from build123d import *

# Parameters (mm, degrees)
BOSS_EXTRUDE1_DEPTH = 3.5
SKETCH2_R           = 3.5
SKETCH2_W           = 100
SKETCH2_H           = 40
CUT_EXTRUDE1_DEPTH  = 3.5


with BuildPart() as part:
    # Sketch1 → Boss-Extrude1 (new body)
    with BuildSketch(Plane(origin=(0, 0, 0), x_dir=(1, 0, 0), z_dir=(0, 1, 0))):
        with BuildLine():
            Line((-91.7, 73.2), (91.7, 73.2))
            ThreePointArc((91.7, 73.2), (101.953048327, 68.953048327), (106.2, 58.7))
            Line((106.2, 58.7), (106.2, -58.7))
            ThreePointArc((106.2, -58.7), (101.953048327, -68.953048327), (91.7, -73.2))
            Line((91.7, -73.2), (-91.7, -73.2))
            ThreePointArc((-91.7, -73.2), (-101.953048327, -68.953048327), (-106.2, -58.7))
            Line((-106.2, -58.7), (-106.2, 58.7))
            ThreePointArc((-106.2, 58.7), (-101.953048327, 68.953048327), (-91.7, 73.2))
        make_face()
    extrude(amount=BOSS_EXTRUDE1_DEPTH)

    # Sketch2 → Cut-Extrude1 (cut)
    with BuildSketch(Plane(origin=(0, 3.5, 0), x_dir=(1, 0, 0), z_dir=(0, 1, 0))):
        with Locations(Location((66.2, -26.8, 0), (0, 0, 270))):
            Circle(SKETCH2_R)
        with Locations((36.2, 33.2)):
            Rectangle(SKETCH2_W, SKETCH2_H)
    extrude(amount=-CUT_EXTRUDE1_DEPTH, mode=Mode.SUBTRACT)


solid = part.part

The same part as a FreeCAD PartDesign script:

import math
import FreeCAD as App
import Part
import Sketcher
from FreeCAD import Vector

doc = App.newDocument("Part")
params = doc.addObject("Spreadsheet::Sheet", "Params")
for row, (alias, value) in enumerate([
    ("sketch1_radius", "14.5 mm"),
    ("sketch1_width", "183.4 mm"),
    ("sketch1_height", "117.4 mm"),
    ("pad1_length", "3.5 mm"),
    ("sketch2_diameter", "7 mm"),
    ("sketch2_width", "100 mm"),
    ("sketch2_height", "40 mm"),
    ("pocket1_length", "3.5 mm"),
], start=1):
    params.set(f"A{row}", alias)
    params.set(f"B{row}", "=" + value)
    params.setAlias(f"B{row}", alias)

body = doc.addObject("PartDesign::Body", "Body")

sketch1 = body.newObject("Sketcher::SketchObject", "Sketch")
sketch1.AttachmentSupport = (doc.getObject("XZ_Plane"), [""])
sketch1.MapMode = "FlatFace"
sketch1.addGeometry([
    Part.LineSegment(Vector(92, -73, 0), Vector(-92, -73, 0)),
    Part.ArcOfCircle(Part.Circle(Vector(-92, -59, 0), Vector(0, 0, 1), 15), math.radians(-180), math.radians(-90)),
    Part.LineSegment(Vector(-106, -59, 0), Vector(-106, 59, 0)),
    Part.ArcOfCircle(Part.Circle(Vector(-92, 59, 0), Vector(0, 0, 1), 15), math.radians(90), math.radians(180)),
    Part.LineSegment(Vector(-92, 73, 0), Vector(92, 73, 0)),
    Part.ArcOfCircle(Part.Circle(Vector(92, 59, 0), Vector(0, 0, 1), 15), math.radians(0), math.radians(90)),
    Part.LineSegment(Vector(106, 59, 0), Vector(106, -59, 0)),
    Part.ArcOfCircle(Part.Circle(Vector(92, -59, 0), Vector(0, 0, 1), 15), math.radians(-90), math.radians(0)),
], False)
sketch1.addConstraint([
    Sketcher.Constraint("Tangent", 0, 2, 1, 2),
    Sketcher.Constraint("Tangent", 1, 1, 2, 1),
    Sketcher.Constraint("Tangent", 2, 2, 3, 2),
    Sketcher.Constraint("Tangent", 3, 1, 4, 1),
    Sketcher.Constraint("Tangent", 4, 2, 5, 2),
    Sketcher.Constraint("Tangent", 5, 1, 6, 1),
    Sketcher.Constraint("Tangent", 6, 2, 7, 2),
    Sketcher.Constraint("Tangent", 7, 1, 0, 1),
    Sketcher.Constraint("Horizontal", 0),
    Sketcher.Constraint("Vertical", 2),
    Sketcher.Constraint("Horizontal", 4),
    Sketcher.Constraint("Vertical", 6),
    Sketcher.Constraint("Equal", 1, 3),
    Sketcher.Constraint("Equal", 3, 5),
    Sketcher.Constraint("Equal", 5, 7),
    Sketcher.Constraint("Symmetric", 1, 3, 5, 3, -1, 1),
    Sketcher.Constraint("Radius", 1, 14.5),
    Sketcher.Constraint("DistanceX", 0, 2, 0, 1, 183.4),
    Sketcher.Constraint("DistanceY", 2, 1, 2, 2, 117.4),
])
sketch1.setExpression("Constraints[16]", "Params.sketch1_radius")
sketch1.setExpression("Constraints[17]", "Params.sketch1_width")
sketch1.setExpression("Constraints[18]", "Params.sketch1_height")
pad1 = body.newObject("PartDesign::Pad", "Pad")
pad1.Profile = sketch1
pad1.setExpression("Length", "Params.pad1_length")
pad1.Reversed = True

sketch2 = body.newObject("Sketcher::SketchObject", "Sketch001")
sketch2.AttachmentSupport = (doc.getObject("XZ_Plane"), [""])
sketch2.MapMode = "FlatFace"
sketch2.AttachmentOffset = App.Placement(Vector(0, 0, -3.5), App.Rotation())
sketch2.addGeometry([
    Part.Circle(Vector(66.2, 26.8, 0), Vector(0, 0, 1), 3.5),
    Part.LineSegment(Vector(-13.8, -53.2, 0), Vector(-13.8, -13.2, 0)),
    Part.LineSegment(Vector(-13.8, -13.2, 0), Vector(86.2, -13.2, 0)),
    Part.LineSegment(Vector(86.2, -13.2, 0), Vector(86.2, -53.2, 0)),
    Part.LineSegment(Vector(86.2, -53.2, 0), Vector(-13.8, -53.2, 0)),
], False)
sketch2.addConstraint([
    Sketcher.Constraint("Coincident", 1, 2, 2, 1),
    Sketcher.Constraint("Coincident", 2, 2, 3, 1),
    Sketcher.Constraint("Coincident", 3, 2, 4, 1),
    Sketcher.Constraint("Coincident", 4, 2, 1, 1),
    Sketcher.Constraint("Vertical", 1),
    Sketcher.Constraint("Horizontal", 2),
    Sketcher.Constraint("Vertical", 3),
    Sketcher.Constraint("Horizontal", 4),
    Sketcher.Constraint("Diameter", 0, 7.0),
    Sketcher.Constraint("DistanceX", 2, 1, 2, 2, 100.0),
    Sketcher.Constraint("DistanceY", 1, 1, 1, 2, 40.0),
    Sketcher.Constraint("DistanceX", 1, 2, 0, 3, 80.0),
    Sketcher.Constraint("DistanceY", 1, 2, 0, 3, 40.0),
    Sketcher.Constraint("DistanceX", -1, 1, 0, 3, 66.2),
    Sketcher.Constraint("DistanceY", -1, 1, 0, 3, 26.8),
])
sketch2.setExpression("Constraints[8]", "Params.sketch2_diameter")
sketch2.setExpression("Constraints[9]", "Params.sketch2_width")
sketch2.setExpression("Constraints[10]", "Params.sketch2_height")
pocket1 = body.newObject("PartDesign::Pocket", "Pocket")
pocket1.Profile = sketch2
pocket1.setExpression("Length", "Params.pocket1_length")
pocket1.Reversed = True

doc.recompute()
